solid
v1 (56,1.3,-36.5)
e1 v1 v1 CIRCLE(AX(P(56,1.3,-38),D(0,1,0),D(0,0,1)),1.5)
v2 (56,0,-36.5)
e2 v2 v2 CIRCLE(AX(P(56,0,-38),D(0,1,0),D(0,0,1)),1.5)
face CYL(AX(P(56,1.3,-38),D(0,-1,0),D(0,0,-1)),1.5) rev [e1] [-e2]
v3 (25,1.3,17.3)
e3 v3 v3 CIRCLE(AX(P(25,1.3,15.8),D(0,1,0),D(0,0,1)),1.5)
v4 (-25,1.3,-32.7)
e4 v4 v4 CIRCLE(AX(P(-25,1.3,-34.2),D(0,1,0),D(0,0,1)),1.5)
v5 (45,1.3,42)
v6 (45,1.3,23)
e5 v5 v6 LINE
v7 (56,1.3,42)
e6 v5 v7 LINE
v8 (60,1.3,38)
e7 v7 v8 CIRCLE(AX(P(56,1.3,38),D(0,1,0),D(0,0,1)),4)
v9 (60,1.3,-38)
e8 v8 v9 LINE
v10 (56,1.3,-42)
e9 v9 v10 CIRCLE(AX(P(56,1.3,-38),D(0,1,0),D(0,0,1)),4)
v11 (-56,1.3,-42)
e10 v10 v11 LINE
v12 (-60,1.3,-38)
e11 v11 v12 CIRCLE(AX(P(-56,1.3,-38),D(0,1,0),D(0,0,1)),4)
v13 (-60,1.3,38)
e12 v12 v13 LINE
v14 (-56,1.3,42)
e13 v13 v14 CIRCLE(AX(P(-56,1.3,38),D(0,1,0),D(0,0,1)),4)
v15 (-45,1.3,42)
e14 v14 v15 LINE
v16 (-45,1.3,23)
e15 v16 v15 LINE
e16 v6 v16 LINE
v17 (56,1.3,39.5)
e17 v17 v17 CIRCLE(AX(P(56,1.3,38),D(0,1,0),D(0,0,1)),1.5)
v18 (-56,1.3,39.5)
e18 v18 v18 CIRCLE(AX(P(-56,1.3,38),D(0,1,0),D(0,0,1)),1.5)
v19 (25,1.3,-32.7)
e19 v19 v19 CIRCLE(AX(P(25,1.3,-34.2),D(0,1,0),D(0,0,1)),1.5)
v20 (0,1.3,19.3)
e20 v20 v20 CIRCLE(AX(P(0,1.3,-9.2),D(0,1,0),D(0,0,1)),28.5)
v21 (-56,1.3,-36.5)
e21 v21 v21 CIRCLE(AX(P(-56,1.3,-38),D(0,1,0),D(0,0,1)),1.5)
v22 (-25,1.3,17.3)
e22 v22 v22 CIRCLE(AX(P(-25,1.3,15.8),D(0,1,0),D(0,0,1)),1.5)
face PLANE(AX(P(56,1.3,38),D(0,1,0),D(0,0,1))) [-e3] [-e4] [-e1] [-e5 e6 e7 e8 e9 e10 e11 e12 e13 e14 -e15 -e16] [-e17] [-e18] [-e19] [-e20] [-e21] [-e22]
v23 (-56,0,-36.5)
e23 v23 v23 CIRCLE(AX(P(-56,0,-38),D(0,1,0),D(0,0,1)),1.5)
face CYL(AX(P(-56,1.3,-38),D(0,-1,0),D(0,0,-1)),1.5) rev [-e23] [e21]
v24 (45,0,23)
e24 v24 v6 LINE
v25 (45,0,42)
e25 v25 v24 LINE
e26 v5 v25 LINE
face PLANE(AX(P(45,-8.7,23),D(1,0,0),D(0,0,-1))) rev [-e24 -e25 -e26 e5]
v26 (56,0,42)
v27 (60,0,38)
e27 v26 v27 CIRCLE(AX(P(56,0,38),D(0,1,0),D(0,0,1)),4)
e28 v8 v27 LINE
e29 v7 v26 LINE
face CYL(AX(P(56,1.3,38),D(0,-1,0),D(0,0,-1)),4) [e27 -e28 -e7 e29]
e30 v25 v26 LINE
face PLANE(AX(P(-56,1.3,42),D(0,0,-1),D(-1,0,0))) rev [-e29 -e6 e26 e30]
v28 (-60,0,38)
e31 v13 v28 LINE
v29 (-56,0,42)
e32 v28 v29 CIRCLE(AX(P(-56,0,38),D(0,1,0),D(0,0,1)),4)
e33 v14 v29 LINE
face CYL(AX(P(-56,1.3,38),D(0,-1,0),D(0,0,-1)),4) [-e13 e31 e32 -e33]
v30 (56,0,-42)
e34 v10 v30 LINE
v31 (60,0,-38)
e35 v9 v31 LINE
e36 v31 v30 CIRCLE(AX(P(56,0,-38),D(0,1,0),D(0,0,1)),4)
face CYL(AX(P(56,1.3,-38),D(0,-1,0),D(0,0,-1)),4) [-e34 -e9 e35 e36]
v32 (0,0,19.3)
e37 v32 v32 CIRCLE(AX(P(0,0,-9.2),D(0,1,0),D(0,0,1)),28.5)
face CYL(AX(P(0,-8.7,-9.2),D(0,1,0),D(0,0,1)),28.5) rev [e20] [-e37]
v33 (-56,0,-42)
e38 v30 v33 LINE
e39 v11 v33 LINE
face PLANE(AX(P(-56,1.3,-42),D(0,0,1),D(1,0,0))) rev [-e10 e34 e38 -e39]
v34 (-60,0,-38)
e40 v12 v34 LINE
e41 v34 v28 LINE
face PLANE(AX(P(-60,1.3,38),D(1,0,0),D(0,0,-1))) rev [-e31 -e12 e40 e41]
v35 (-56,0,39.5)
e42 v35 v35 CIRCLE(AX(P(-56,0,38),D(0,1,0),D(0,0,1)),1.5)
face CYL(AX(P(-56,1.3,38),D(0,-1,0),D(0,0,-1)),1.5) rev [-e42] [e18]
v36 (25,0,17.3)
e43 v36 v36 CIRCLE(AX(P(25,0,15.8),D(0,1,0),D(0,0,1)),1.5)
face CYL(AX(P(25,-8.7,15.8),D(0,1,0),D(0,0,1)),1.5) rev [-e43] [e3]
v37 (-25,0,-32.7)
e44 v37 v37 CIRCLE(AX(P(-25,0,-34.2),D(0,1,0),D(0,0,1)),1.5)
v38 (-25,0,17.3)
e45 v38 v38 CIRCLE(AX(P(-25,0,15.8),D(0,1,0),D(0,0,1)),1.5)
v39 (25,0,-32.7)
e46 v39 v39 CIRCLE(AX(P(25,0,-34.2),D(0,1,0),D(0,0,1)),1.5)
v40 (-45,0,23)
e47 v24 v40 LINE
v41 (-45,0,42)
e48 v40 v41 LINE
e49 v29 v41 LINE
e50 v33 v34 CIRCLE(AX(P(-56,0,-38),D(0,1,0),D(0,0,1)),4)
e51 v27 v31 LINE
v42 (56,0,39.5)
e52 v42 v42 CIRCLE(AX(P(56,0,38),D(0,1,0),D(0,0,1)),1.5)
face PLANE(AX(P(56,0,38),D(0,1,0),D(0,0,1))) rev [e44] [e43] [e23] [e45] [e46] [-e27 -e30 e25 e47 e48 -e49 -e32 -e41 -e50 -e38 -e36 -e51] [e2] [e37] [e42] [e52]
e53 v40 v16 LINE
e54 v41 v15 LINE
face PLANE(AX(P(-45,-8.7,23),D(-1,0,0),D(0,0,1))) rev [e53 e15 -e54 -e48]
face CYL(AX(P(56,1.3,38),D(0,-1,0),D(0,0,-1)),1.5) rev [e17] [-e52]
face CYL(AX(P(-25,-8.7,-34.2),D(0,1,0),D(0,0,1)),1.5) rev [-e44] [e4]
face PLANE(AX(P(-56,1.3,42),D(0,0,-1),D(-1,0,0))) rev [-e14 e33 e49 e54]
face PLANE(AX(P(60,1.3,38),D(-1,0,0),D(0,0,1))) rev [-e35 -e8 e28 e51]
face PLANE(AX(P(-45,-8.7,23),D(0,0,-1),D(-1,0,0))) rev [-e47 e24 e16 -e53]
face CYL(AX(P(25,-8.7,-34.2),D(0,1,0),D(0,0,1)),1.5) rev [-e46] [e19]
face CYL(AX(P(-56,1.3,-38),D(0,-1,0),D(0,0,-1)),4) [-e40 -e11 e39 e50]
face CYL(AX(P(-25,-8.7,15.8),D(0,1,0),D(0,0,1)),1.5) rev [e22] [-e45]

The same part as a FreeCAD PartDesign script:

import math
import FreeCAD as App
import Part
import Sketcher
from FreeCAD import Vector


def add_polygon(sketch, points):
    """Adds a closed chain of lines whose ends are joined by coincident constraints."""
    first, n = sketch.GeometryCount, len(points)
    for a, b in zip(points, points[1:] + points[:1]):
        sketch.addGeometry(Part.LineSegment(App.Vector(*a, 0), App.Vector(*b, 0)), False)
    for i in range(n):
        sketch.addConstraint(Sketcher.Constraint("Coincident", first + i, 2, first + (i + 1) % n, 1))

doc = App.newDocument("Part")
body = doc.addObject("PartDesign::Body", "Body")

# Sketch on XZ plane
sketch1 = doc.addObject("Sketcher::SketchObject", "Sketch")
body.addObject(sketch1)
sketch1.AttachmentSupport = (doc.XZ_Plane, [""])
sketch1.MapMode = "FlatFace"
sketch1.addGeometry([
    Part.LineSegment(Vector(-56, 42, 0), Vector(56, 42, 0)),  # 0
    Part.ArcOfCircle(Part.Circle(Vector(56, 38, 0), Vector(0, 0, 1), 4), math.radians(0), math.radians(90)),  # 1
    Part.LineSegment(Vector(60, 38, 0), Vector(60, -38, 0)),  # 2
    Part.ArcOfCircle(Part.Circle(Vector(56, -38, 0), Vector(0, 0, 1), 4), math.radians(-90), math.radians(0)),  # 3
    Part.LineSegment(Vector(56, -42, 0), Vector(-56, -42, 0)),  # 4
    Part.ArcOfCircle(Part.Circle(Vector(-56, -38, 0), Vector(0, 0, 1), 4), math.radians(180), math.radians(270)),  # 5
    Part.LineSegment(Vector(-60, -38, 0), Vector(-60, 38, 0)),  # 6
    Part.ArcOfCircle(Part.Circle(Vector(-56, 38, 0), Vector(0, 0, 1), 4), math.radians(90), math.radians(180)),  # 7
    Part.Circle(Vector(-56, 38, 0), Vector(0, 0, 1), 1.5),  # 8
    Part.Circle(Vector(56, 38, 0), Vector(0, 0, 1), 1.5),  # 9
    Part.Circle(Vector(-56, -38, 0), Vector(0, 0, 1), 1.5),  # 10
    Part.Circle(Vector(56, -38, 0), Vector(0, 0, 1), 1.5),  # 11
], False)
sketch1.addConstraint([
    Sketcher.Constraint("Tangent", 0, 2, 1, 2),
    Sketcher.Constraint("Tangent", 1, 1, 2, 1),
    Sketcher.Constraint("Tangent", 2, 2, 3, 2),
    Sketcher.Constraint("Tangent", 3, 1, 4, 1),
    Sketcher.Constraint("Tangent", 4, 2, 5, 2),
    Sketcher.Constraint("Tangent", 5, 1, 6, 1),
    Sketcher.Constraint("Tangent", 6, 2, 7, 2),
    Sketcher.Constraint("Tangent", 7, 1, 0, 1),
    Sketcher.Constraint("Horizontal", 0),
    Sketcher.Constraint("Vertical", 2),
    Sketcher.Constraint("Horizontal", 4),
    Sketcher.Constraint("Vertical", 6),
    Sketcher.Constraint("Coincident", 8, 3, 7, 3),
    Sketcher.Constraint("Coincident", 9, 3, 1, 3),
    Sketcher.Constraint("Coincident", 10, 3, 5, 3),
    Sketcher.Constraint("Coincident", 11, 3, 3, 3),
    Sketcher.Constraint("Equal", 1, 3),
    Sketcher.Constraint("Equal", 3, 5),
    Sketcher.Constraint("Equal", 5, 7),
    Sketcher.Constraint("Equal", 8, 9),
    Sketcher.Constraint("Equal", 9, 10),
    Sketcher.Constraint("Equal", 10, 11),
    Sketcher.Constraint("Symmetric", 1, 3, 5, 3, -1, 1),
    Sketcher.Constraint("Diameter", 8, 3.0),
    Sketcher.Constraint("Radius", 1, 4.0),
    Sketcher.Constraint("DistanceX", 0, 1, 0, 2, 112.0),
    Sketcher.Constraint("DistanceY", 2, 2, 2, 1, 76.0),
])
pad1 = doc.addObject("PartDesign::Pad", "Pad")
body.addObject(pad1)
pad1.Profile = sketch1
pad1.Length = 1.3
pad1.Reversed = True

# Sketch on XZ plane
sketch2 = doc.addObject("Sketcher::SketchObject", "Sketch001")
body.addObject(sketch2)
sketch2.AttachmentSupport = (doc.XZ_Plane, [""])
sketch2.MapMode = "FlatFace"
sketch2.AttachmentOffset = App.Placement(Vector(0, 0, -1.3), App.Rotation())
sketch2.addGeometry(Part.Circle(Vector(0, -9.2, 0), Vector(0, 0, 1), 28.5), False)  # 0
sketch2.addGeometry(Part.Circle(Vector(-25, -34.2, 0), Vector(0, 0, 1), 1.5), False)  # 1
sketch2.addGeometry(Part.Circle(Vector(25, -34.2, 0), Vector(0, 0, 1), 1.5), False)  # 2
sketch2.addGeometry(Part.Circle(Vector(25, 15.8, 0), Vector(0, 0, 1), 1.5), False)  # 3
sketch2.addGeometry(Part.Circle(Vector(-25, 15.8, 0), Vector(0, 0, 1), 1.5), False)  # 4
add_polygon(sketch2, [(-45, 23), (-45, 42), (45, 42), (45, 23)])  # lines 5-8
sketch2.addConstraint([
    Sketcher.Constraint("Vertical", 5),
    Sketcher.Constraint("Horizontal", 6),
    Sketcher.Constraint("Vertical", 7),
    Sketcher.Constraint("Horizontal", 8),
    Sketcher.Constraint("Equal", 1, 2),
    Sketcher.Constraint("Equal", 2, 3),
    Sketcher.Constraint("Equal", 3, 4),
    Sketcher.Constraint("Symmetric", 1, 3, 2, 3, -2),
    Sketcher.Constraint("Symmetric", 3, 3, 4, 3, -2),
    Sketcher.Constraint("PointOnObject", 0, 3, -2),
    Sketcher.Constraint("Vertical", 2, 3, 3, 3),
    Sketcher.Constraint("Diameter", 0, 57.0),
    Sketcher.Constraint("Diameter", 1, 3.0),
    Sketcher.Constraint("DistanceX", 6, 1, 6, 2, 90.0),
    Sketcher.Constraint("DistanceY", 5, 1, 5, 2, 19.0),
    Sketcher.Constraint("DistanceX", 1, 3, -1, 1, 25.0),
    Sketcher.Constraint("DistanceX", 5, 2, -1, 1, 45.0),
    Sketcher.Constraint("DistanceY", -1, 1, 5, 2, 42.0),
    Sketcher.Constraint("DistanceY", 1, 3, 0, 3, 25.0),
    Sketcher.Constraint("DistanceY", 0, 3, 3, 3, 25.0),
    Sketcher.Constraint("DistanceY", 0, 3, -1, 1, 9.2),
])
pocket1 = doc.addObject("PartDesign::Pocket", "Pocket")
body.addObject(pocket1)
pocket1.Profile = sketch2
pocket1.Length = 10
pocket1.Reversed = True

doc.recompute()
